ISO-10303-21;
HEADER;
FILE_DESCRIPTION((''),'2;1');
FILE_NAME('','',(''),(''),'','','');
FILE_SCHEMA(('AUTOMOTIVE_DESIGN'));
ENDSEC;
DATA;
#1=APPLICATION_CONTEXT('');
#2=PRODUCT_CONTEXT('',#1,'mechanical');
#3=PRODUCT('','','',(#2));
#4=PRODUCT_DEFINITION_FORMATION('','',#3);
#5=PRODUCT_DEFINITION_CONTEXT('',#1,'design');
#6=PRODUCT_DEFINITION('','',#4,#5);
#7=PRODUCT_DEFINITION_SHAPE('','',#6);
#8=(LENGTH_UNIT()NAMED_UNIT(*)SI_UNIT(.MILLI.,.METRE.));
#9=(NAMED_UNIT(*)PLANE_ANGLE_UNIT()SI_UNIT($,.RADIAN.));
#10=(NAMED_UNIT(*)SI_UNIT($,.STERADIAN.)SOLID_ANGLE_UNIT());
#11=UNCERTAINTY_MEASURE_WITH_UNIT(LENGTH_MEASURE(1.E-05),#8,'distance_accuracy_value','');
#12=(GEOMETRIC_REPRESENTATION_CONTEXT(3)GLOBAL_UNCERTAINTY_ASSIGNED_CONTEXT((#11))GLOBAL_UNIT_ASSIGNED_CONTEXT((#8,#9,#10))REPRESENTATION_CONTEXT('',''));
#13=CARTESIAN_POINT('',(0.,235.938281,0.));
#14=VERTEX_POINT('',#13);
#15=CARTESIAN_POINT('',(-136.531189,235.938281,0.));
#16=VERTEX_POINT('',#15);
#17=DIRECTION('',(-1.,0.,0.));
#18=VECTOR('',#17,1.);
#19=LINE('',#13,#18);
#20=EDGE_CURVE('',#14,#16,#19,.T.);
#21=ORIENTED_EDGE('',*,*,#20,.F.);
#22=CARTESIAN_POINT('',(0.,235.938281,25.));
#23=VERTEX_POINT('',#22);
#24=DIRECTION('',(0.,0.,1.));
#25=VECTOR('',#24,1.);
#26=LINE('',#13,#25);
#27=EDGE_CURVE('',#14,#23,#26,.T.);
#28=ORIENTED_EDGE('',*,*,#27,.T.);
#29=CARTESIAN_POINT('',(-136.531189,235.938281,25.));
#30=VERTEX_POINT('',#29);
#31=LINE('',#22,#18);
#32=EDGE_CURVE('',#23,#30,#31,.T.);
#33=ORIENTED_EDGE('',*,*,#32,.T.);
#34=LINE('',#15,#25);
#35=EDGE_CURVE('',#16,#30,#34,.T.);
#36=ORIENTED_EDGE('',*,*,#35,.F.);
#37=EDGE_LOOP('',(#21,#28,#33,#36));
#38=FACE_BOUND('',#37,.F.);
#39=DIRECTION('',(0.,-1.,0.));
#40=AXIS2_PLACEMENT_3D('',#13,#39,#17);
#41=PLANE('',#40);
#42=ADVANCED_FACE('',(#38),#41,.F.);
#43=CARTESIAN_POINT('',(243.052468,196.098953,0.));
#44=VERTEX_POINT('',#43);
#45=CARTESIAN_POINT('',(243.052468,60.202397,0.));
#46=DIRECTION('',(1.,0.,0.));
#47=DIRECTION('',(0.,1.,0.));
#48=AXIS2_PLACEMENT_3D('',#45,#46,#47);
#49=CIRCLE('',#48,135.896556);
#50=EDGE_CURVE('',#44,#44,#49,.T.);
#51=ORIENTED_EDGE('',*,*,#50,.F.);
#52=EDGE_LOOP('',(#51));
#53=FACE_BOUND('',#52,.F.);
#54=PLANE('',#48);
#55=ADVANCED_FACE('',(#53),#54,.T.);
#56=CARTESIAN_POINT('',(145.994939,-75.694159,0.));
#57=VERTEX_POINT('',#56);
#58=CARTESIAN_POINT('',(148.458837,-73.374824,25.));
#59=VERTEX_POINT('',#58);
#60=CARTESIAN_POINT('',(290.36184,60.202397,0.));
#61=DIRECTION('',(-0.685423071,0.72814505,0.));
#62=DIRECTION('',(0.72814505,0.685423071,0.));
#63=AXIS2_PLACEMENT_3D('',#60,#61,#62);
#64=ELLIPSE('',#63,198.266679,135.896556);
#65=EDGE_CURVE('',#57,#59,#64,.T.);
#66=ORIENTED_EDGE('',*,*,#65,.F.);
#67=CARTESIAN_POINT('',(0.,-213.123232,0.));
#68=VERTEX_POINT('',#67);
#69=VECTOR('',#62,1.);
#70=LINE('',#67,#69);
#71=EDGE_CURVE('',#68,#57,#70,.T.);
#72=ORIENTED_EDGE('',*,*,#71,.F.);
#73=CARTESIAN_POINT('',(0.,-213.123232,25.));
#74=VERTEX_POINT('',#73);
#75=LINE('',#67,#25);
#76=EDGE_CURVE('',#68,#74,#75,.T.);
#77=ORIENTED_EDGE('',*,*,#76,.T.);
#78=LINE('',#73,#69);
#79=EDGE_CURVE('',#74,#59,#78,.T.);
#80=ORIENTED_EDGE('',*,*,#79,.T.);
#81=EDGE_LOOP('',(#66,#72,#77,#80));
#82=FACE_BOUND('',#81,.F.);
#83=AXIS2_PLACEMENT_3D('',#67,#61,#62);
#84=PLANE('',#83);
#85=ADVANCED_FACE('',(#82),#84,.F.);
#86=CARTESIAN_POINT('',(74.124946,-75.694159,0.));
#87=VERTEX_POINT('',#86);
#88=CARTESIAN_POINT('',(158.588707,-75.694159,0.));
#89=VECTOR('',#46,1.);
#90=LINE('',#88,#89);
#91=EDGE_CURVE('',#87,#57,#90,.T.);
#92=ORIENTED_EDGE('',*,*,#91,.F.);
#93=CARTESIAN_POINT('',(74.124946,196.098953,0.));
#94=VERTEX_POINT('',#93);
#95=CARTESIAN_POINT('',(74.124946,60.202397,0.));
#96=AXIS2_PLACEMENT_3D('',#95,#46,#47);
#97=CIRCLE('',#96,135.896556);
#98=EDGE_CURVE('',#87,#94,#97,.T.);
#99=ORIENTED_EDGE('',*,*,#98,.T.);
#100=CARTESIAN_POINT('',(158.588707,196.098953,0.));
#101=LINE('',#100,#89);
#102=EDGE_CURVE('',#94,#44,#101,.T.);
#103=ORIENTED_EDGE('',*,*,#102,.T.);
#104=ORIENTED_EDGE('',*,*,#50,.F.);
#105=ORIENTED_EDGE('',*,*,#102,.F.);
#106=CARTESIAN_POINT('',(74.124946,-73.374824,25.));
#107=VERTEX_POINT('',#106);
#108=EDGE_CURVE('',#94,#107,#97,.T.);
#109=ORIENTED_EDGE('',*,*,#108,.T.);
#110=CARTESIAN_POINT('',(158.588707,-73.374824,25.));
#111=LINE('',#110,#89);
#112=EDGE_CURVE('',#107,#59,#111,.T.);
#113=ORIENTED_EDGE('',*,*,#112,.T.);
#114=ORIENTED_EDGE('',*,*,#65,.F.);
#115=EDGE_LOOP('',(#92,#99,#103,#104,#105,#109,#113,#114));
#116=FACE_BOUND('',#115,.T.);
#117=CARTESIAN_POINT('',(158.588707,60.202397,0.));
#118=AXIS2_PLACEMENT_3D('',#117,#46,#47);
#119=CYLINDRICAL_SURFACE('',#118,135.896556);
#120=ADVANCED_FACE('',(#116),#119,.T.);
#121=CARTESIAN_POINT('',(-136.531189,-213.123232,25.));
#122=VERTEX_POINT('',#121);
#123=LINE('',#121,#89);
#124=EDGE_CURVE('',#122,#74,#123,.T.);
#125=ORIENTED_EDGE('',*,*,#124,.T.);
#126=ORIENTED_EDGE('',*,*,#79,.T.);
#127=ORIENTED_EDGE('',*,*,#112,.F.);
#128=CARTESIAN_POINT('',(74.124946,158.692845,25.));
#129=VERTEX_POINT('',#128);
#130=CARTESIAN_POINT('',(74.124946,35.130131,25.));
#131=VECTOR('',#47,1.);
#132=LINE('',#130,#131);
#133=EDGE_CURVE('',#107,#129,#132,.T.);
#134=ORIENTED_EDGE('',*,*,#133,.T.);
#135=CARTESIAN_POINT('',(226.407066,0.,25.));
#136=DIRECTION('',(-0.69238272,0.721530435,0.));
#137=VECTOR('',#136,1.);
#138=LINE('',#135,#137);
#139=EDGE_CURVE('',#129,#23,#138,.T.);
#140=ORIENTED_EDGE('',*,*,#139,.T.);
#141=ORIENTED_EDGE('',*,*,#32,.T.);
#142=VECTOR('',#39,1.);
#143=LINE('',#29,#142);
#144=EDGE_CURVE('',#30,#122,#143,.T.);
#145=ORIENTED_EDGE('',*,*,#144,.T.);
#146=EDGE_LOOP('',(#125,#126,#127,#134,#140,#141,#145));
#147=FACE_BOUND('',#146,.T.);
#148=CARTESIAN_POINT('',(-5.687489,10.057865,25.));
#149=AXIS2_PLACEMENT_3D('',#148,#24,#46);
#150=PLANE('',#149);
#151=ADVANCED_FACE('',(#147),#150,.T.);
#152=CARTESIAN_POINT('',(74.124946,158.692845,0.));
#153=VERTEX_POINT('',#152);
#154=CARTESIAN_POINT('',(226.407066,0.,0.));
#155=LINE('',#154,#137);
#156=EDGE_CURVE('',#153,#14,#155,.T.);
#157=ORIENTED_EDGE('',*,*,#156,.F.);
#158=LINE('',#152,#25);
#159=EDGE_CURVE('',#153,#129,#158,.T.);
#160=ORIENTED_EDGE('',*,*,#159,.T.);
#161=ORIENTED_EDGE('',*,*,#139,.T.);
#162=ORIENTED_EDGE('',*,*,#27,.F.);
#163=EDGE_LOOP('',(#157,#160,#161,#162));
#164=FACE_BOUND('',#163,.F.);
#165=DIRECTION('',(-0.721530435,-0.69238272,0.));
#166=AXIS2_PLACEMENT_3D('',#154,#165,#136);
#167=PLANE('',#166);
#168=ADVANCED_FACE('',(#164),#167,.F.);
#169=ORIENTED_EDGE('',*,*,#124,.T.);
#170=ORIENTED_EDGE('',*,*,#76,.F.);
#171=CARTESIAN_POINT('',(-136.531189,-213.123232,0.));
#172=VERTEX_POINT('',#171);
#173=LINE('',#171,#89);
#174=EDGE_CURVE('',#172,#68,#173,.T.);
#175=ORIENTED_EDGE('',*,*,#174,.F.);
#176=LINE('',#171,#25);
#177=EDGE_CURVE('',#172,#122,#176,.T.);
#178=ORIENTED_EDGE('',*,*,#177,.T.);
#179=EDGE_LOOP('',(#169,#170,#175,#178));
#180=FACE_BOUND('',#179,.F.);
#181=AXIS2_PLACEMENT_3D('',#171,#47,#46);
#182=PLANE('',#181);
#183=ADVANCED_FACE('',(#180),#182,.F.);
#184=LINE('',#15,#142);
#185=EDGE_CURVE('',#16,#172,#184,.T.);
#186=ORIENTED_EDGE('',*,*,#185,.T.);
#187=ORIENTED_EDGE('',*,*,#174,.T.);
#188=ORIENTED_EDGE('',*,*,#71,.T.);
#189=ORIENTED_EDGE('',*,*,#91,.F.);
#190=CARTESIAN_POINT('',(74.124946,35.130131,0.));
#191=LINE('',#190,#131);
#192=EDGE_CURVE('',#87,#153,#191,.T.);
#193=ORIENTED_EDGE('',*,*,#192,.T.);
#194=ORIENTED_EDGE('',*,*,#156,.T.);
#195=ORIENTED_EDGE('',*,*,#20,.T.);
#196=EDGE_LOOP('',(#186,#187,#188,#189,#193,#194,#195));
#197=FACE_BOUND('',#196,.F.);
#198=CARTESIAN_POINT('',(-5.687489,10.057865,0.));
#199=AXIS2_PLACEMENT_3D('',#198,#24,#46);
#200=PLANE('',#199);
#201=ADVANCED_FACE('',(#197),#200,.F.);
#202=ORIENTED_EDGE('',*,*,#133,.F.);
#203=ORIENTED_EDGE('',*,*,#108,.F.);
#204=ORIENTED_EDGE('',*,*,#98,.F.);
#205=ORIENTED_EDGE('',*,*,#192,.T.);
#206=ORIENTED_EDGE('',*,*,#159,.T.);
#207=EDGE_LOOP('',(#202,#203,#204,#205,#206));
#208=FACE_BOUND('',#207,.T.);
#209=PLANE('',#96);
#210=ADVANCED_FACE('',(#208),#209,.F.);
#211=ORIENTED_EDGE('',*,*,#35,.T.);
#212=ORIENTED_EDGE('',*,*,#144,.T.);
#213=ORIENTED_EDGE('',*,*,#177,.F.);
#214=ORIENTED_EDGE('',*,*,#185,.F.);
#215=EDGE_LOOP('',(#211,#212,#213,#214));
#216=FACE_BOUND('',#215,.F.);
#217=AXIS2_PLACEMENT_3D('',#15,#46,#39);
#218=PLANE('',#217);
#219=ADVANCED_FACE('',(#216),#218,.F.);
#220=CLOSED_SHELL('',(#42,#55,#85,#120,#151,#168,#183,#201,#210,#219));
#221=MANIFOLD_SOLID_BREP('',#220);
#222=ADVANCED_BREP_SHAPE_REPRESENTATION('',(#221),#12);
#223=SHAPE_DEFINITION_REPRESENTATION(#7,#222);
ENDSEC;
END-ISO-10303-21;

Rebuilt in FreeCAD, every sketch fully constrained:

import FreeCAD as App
import Part
import Sketcher
Q = App.Units.Quantity


def add_polygon(sketch, points):
    """Adds a closed chain of lines whose ends are joined by coincident constraints."""
    first, n = sketch.GeometryCount, len(points)
    for a, b in zip(points, points[1:] + points[:1]):
        sketch.addGeometry(Part.LineSegment(App.Vector(*a, 0), App.Vector(*b, 0)), False)
    for i in range(n):
        sketch.addConstraint(Sketcher.Constraint("Coincident", first + i, 2, first + (i + 1) % n, 1))

doc = App.newDocument("Part")
body = doc.addObject("PartDesign::Body", "Body")

# Sketch on XY plane
sketch1 = body.newObject("Sketcher::SketchObject", "Sketch")
sketch1.AttachmentSupport = (doc.getObject("XY_Plane"), [""])
sketch1.MapMode = "FlatFace"
add_polygon(sketch1, [(74.124946, 196.098953), (74.124946, 60.202397), (243.052468, 60.202397), (243.052468, 196.098953)])  # lines 0-3
sketch1.addGeometry(Part.LineSegment(App.Vector(74.124946, 60.202397, 0), App.Vector(243.052468, 60.202397, 0)), True)  # axis
sketch1.addConstraint(Sketcher.Constraint("Vertical", 0))
sketch1.addConstraint(Sketcher.Constraint("Horizontal", 1))
sketch1.addConstraint(Sketcher.Constraint("Vertical", 2))
sketch1.addConstraint(Sketcher.Constraint("Horizontal", 3))
sketch1.addConstraint(Sketcher.Constraint("Horizontal", 4))
sketch1.addConstraint(Sketcher.Constraint("Coincident", 4, 1, 0, 2))
sketch1.addConstraint(Sketcher.Constraint("Vertical", 2, 2, 4, 2))
sketch1.addConstraint(Sketcher.Constraint("DistanceX", 1, 1, 1, 2, Q("168.927521 mm")))
sketch1.addConstraint(Sketcher.Constraint("DistanceY", 0, 2, 0, 1, Q("135.896556 mm")))
sketch1.addConstraint(Sketcher.Constraint("DistanceX", -1, 1, 0, 2, Q("74.124946 mm")))
sketch1.addConstraint(Sketcher.Constraint("DistanceY", -1, 1, 0, 2, Q("60.202397 mm")))
revolution = body.newObject("PartDesign::Revolution", "Revolution")
revolution.Profile = sketch1
revolution.ReferenceAxis = (sketch1, ["Axis0"])
revolution.Angle = 360

# Sketch on XY plane
sketch2 = body.newObject("Sketcher::SketchObject", "Sketch001")
sketch2.AttachmentSupport = (doc.getObject("XY_Plane"), [""])
sketch2.MapMode = "FlatFace"
add_polygon(sketch2, [(0, 235.938281), (-136.531189, 235.938281), (-136.531189, -213.123232), (0, -213.123232), (226.407066, 0)])  # lines 0-4
sketch2.addConstraint(Sketcher.Constraint("Horizontal", 0))
sketch2.addConstraint(Sketcher.Constraint("Vertical", 1))
sketch2.addConstraint(Sketcher.Constraint("Horizontal", 2))
sketch2.addConstraint(Sketcher.Constraint("PointOnObject", 2, 2, -2))
sketch2.addConstraint(Sketcher.Constraint("PointOnObject", 3, 2, -1))
sketch2.addConstraint(Sketcher.Constraint("PointOnObject", 4, 2, -2))
sketch2.addConstraint(Sketcher.Constraint("DistanceX", 0, 2, 0, 1, Q("136.531189 mm")))
sketch2.addConstraint(Sketcher.Constraint("Distance", 4, Q("326.996991 mm")))
sketch2.addConstraint(Sketcher.Constraint("DistanceY", 1, 2, 1, 1, Q("449.061513 mm")))
sketch2.addConstraint(Sketcher.Constraint("DistanceY", -1, 1, 0, 2, Q("235.938281 mm")))
pad1 = body.newObject("PartDesign::Pad", "Pad")
pad1.Profile = sketch2
pad1.Length = 25

doc.recompute()
